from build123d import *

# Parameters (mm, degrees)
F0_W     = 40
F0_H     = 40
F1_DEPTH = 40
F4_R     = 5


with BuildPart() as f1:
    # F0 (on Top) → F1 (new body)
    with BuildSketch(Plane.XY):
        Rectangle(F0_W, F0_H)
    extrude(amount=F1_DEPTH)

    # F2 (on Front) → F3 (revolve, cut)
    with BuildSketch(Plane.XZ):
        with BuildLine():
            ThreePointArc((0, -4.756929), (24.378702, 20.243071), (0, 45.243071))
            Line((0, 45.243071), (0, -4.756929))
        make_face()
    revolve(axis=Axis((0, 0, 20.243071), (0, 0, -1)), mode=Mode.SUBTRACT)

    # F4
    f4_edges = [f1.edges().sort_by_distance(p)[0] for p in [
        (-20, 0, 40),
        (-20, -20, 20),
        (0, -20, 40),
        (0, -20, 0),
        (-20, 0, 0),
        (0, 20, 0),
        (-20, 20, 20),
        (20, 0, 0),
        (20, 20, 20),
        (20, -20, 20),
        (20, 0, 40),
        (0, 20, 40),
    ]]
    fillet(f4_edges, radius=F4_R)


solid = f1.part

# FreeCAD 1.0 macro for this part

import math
import FreeCAD as App
import Part
import Sketcher
from FreeCAD import Vector


def edges_at(feature, points):
    """Names of the edges that pass closest to the given points."""
    edges = feature.Shape.Edges
    near = lambda p: min(range(len(edges)), key=lambda i: edges[i].distToShape(Part.Vertex(*p))[0])
    return sorted({f"Edge{near(p) + 1}" for p in points})

doc = App.newDocument("Part")
params = doc.addObject("Spreadsheet::Sheet", "Params")
for row, (alias, value) in enumerate([
    ("sketch1_width", "40 mm"),
    ("pad1_length", "40 mm"),
    ("sketch2_height", "50 mm"),
    ("groove_angle", "360 deg"),
    ("fillet_radius", "5 mm"),
], start=1):
    params.set(f"A{row}", alias)
    params.set(f"B{row}", "=" + value)
    params.setAlias(f"B{row}", alias)

body = doc.addObject("PartDesign::Body", "Body")

sketch1 = body.newObject("Sketcher::SketchObject", "Sketch")
sketch1.AttachmentSupport = (doc.getObject("XY_Plane"), [""])
sketch1.MapMode = "FlatFace"
sketch1.addGeometry([
    Part.LineSegment(Vector(-20, 20, 0), Vector(-20, -20, 0)),
    Part.LineSegment(Vector(-20, -20, 0), Vector(20, -20, 0)),
    Part.LineSegment(Vector(20, -20, 0), Vector(20, 20, 0)),
    Part.LineSegment(Vector(20, 20, 0), Vector(-20, 20, 0)),
], False)
sketch1.addConstraint([
    Sketcher.Constraint("Coincident", 0, 2, 1, 1),
    Sketcher.Constraint("Coincident", 1, 2, 2, 1),
    Sketcher.Constraint("Coincident", 2, 2, 3, 1),
    Sketcher.Constraint("Coincident", 3, 2, 0, 1),
    Sketcher.Constraint("Vertical", 0),
    Sketcher.Constraint("Horizontal", 1),
    Sketcher.Constraint("Vertical", 2),
    Sketcher.Constraint("Horizontal", 3),
    Sketcher.Constraint("Symmetric", 0, 2, 2, 2, -1, 1),
    Sketcher.Constraint("Equal", 3, 0),
    Sketcher.Constraint("DistanceX", 1, 1, 1, 2, 40.0),
])
sketch1.setExpression("Constraints[10]", "Params.sketch1_width")
pad1 = body.newObject("PartDesign::Pad", "Pad")
pad1.Profile = sketch1
pad1.setExpression("Length", "Params.pad1_length")

sketch2 = body.newObject("Sketcher::SketchObject", "Sketch001")
sketch2.AttachmentSupport = (doc.getObject("XZ_Plane"), [""])
sketch2.MapMode = "FlatFace"
sketch2.addGeometry([
    Part.ArcOfCircle(Part.Circle(Vector(-1, 20, 0), Vector(0, 0, 1), 25), math.radians(-89), math.radians(89)),
    Part.LineSegment(Vector(0, 45, 0), Vector(0, -5, 0)),
], False)
sketch2.addConstraint([
    Sketcher.Constraint("Coincident", 0, 1, 1, 2),
    Sketcher.Constraint("Coincident", 1, 1, 0, 2),
    Sketcher.Constraint("Vertical", 1),
    Sketcher.Constraint("PointOnObject", 0, 1, -2),
    Sketcher.Constraint("DistanceY", 1, 2, 1, 1, 50.0),
    Sketcher.Constraint("Radius", 0, 25.007917),
    Sketcher.Constraint("DistanceY", -1, 1, 0, 3, 20.243071),
])
sketch2.setExpression("Constraints[4]", "Params.sketch2_height")
groove = body.newObject("PartDesign::Groove", "Groove")
groove.Profile = sketch2
groove.ReferenceAxis = (sketch2, ["V_Axis"])
groove.setExpression("Angle", "Params.groove_angle")
doc.recompute()

fillet = body.newObject("PartDesign::Fillet", "Fillet")
fillet.Base = (groove, edges_at(groove, [
    (-20, 0, 40),
    (-20, -20, 20),
    (0, -20, 40),
    (0, -20, 0),
    (-20, 0, 0),
    (0, 20, 0),
    (-20, 20, 20),
    (20, 0, 0),
    (20, 20, 20),
    (20, -20, 20),
    (20, 0, 40),
    (0, 20, 40),
]))
fillet.setExpression("Radius", "Params.fillet_radius")

doc.recompute()
